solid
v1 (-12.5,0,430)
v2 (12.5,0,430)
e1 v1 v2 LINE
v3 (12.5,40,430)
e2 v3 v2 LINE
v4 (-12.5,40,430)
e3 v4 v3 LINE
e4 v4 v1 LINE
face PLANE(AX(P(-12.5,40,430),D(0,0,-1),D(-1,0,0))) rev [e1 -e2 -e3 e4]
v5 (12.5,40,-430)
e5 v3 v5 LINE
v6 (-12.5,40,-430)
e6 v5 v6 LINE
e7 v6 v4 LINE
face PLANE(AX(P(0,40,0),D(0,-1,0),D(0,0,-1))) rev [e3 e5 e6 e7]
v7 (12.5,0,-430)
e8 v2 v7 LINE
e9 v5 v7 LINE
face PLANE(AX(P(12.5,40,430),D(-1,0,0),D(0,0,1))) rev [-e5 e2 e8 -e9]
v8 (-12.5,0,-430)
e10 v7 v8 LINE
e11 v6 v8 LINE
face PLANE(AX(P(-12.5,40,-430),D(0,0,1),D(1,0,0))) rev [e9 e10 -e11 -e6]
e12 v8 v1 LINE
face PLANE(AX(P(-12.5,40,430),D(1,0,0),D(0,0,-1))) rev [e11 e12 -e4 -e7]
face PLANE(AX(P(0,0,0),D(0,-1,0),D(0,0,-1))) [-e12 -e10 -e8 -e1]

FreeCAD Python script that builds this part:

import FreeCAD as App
import Part
import Sketcher

V = App.Vector
Q = App.Units.Quantity

doc = App.newDocument("Part")
body = doc.addObject("PartDesign::Body", "Body")

sketch1 = body.newObject("Sketcher::SketchObject", "Sketch")
sketch1.AttachmentSupport = (doc.getObject("XZ_Plane"), [""])
sketch1.MapMode = "FlatFace"
sketch1.addGeometry([
    Part.LineSegment(V(-12, -430, 0), V(-12, 430, 0)),
    Part.LineSegment(V(-12, 430, 0), V(12, 430, 0)),
    Part.LineSegment(V(12, 430, 0), V(12, -430, 0)),
    Part.LineSegment(V(12, -430, 0), V(-12, -430, 0)),
], False)
sketch1.addConstraint([
    Sketcher.Constraint("Coincident", 0, 2, 1, 1),
    Sketcher.Constraint("Coincident", 1, 2, 2, 1),
    Sketcher.Constraint("Coincident", 2, 2, 3, 1),
    Sketcher.Constraint("Coincident", 3, 2, 0, 1),
    Sketcher.Constraint("Vertical", 0),
    Sketcher.Constraint("Horizontal", 1),
    Sketcher.Constraint("Vertical", 2),
    Sketcher.Constraint("Horizontal", 3),
    Sketcher.Constraint("Symmetric", 0, 2, 2, 2, -1, 1),
    Sketcher.Constraint("DistanceX", 1, 1, 1, 2, Q("25 mm")),
    Sketcher.Constraint("DistanceY", 0, 1, 0, 2, Q("860 mm")),
])
pad1 = body.newObject("PartDesign::Pad", "Pad")
pad1.Profile = sketch1
pad1.Length = 40
pad1.Reversed = True

doc.recompute()
